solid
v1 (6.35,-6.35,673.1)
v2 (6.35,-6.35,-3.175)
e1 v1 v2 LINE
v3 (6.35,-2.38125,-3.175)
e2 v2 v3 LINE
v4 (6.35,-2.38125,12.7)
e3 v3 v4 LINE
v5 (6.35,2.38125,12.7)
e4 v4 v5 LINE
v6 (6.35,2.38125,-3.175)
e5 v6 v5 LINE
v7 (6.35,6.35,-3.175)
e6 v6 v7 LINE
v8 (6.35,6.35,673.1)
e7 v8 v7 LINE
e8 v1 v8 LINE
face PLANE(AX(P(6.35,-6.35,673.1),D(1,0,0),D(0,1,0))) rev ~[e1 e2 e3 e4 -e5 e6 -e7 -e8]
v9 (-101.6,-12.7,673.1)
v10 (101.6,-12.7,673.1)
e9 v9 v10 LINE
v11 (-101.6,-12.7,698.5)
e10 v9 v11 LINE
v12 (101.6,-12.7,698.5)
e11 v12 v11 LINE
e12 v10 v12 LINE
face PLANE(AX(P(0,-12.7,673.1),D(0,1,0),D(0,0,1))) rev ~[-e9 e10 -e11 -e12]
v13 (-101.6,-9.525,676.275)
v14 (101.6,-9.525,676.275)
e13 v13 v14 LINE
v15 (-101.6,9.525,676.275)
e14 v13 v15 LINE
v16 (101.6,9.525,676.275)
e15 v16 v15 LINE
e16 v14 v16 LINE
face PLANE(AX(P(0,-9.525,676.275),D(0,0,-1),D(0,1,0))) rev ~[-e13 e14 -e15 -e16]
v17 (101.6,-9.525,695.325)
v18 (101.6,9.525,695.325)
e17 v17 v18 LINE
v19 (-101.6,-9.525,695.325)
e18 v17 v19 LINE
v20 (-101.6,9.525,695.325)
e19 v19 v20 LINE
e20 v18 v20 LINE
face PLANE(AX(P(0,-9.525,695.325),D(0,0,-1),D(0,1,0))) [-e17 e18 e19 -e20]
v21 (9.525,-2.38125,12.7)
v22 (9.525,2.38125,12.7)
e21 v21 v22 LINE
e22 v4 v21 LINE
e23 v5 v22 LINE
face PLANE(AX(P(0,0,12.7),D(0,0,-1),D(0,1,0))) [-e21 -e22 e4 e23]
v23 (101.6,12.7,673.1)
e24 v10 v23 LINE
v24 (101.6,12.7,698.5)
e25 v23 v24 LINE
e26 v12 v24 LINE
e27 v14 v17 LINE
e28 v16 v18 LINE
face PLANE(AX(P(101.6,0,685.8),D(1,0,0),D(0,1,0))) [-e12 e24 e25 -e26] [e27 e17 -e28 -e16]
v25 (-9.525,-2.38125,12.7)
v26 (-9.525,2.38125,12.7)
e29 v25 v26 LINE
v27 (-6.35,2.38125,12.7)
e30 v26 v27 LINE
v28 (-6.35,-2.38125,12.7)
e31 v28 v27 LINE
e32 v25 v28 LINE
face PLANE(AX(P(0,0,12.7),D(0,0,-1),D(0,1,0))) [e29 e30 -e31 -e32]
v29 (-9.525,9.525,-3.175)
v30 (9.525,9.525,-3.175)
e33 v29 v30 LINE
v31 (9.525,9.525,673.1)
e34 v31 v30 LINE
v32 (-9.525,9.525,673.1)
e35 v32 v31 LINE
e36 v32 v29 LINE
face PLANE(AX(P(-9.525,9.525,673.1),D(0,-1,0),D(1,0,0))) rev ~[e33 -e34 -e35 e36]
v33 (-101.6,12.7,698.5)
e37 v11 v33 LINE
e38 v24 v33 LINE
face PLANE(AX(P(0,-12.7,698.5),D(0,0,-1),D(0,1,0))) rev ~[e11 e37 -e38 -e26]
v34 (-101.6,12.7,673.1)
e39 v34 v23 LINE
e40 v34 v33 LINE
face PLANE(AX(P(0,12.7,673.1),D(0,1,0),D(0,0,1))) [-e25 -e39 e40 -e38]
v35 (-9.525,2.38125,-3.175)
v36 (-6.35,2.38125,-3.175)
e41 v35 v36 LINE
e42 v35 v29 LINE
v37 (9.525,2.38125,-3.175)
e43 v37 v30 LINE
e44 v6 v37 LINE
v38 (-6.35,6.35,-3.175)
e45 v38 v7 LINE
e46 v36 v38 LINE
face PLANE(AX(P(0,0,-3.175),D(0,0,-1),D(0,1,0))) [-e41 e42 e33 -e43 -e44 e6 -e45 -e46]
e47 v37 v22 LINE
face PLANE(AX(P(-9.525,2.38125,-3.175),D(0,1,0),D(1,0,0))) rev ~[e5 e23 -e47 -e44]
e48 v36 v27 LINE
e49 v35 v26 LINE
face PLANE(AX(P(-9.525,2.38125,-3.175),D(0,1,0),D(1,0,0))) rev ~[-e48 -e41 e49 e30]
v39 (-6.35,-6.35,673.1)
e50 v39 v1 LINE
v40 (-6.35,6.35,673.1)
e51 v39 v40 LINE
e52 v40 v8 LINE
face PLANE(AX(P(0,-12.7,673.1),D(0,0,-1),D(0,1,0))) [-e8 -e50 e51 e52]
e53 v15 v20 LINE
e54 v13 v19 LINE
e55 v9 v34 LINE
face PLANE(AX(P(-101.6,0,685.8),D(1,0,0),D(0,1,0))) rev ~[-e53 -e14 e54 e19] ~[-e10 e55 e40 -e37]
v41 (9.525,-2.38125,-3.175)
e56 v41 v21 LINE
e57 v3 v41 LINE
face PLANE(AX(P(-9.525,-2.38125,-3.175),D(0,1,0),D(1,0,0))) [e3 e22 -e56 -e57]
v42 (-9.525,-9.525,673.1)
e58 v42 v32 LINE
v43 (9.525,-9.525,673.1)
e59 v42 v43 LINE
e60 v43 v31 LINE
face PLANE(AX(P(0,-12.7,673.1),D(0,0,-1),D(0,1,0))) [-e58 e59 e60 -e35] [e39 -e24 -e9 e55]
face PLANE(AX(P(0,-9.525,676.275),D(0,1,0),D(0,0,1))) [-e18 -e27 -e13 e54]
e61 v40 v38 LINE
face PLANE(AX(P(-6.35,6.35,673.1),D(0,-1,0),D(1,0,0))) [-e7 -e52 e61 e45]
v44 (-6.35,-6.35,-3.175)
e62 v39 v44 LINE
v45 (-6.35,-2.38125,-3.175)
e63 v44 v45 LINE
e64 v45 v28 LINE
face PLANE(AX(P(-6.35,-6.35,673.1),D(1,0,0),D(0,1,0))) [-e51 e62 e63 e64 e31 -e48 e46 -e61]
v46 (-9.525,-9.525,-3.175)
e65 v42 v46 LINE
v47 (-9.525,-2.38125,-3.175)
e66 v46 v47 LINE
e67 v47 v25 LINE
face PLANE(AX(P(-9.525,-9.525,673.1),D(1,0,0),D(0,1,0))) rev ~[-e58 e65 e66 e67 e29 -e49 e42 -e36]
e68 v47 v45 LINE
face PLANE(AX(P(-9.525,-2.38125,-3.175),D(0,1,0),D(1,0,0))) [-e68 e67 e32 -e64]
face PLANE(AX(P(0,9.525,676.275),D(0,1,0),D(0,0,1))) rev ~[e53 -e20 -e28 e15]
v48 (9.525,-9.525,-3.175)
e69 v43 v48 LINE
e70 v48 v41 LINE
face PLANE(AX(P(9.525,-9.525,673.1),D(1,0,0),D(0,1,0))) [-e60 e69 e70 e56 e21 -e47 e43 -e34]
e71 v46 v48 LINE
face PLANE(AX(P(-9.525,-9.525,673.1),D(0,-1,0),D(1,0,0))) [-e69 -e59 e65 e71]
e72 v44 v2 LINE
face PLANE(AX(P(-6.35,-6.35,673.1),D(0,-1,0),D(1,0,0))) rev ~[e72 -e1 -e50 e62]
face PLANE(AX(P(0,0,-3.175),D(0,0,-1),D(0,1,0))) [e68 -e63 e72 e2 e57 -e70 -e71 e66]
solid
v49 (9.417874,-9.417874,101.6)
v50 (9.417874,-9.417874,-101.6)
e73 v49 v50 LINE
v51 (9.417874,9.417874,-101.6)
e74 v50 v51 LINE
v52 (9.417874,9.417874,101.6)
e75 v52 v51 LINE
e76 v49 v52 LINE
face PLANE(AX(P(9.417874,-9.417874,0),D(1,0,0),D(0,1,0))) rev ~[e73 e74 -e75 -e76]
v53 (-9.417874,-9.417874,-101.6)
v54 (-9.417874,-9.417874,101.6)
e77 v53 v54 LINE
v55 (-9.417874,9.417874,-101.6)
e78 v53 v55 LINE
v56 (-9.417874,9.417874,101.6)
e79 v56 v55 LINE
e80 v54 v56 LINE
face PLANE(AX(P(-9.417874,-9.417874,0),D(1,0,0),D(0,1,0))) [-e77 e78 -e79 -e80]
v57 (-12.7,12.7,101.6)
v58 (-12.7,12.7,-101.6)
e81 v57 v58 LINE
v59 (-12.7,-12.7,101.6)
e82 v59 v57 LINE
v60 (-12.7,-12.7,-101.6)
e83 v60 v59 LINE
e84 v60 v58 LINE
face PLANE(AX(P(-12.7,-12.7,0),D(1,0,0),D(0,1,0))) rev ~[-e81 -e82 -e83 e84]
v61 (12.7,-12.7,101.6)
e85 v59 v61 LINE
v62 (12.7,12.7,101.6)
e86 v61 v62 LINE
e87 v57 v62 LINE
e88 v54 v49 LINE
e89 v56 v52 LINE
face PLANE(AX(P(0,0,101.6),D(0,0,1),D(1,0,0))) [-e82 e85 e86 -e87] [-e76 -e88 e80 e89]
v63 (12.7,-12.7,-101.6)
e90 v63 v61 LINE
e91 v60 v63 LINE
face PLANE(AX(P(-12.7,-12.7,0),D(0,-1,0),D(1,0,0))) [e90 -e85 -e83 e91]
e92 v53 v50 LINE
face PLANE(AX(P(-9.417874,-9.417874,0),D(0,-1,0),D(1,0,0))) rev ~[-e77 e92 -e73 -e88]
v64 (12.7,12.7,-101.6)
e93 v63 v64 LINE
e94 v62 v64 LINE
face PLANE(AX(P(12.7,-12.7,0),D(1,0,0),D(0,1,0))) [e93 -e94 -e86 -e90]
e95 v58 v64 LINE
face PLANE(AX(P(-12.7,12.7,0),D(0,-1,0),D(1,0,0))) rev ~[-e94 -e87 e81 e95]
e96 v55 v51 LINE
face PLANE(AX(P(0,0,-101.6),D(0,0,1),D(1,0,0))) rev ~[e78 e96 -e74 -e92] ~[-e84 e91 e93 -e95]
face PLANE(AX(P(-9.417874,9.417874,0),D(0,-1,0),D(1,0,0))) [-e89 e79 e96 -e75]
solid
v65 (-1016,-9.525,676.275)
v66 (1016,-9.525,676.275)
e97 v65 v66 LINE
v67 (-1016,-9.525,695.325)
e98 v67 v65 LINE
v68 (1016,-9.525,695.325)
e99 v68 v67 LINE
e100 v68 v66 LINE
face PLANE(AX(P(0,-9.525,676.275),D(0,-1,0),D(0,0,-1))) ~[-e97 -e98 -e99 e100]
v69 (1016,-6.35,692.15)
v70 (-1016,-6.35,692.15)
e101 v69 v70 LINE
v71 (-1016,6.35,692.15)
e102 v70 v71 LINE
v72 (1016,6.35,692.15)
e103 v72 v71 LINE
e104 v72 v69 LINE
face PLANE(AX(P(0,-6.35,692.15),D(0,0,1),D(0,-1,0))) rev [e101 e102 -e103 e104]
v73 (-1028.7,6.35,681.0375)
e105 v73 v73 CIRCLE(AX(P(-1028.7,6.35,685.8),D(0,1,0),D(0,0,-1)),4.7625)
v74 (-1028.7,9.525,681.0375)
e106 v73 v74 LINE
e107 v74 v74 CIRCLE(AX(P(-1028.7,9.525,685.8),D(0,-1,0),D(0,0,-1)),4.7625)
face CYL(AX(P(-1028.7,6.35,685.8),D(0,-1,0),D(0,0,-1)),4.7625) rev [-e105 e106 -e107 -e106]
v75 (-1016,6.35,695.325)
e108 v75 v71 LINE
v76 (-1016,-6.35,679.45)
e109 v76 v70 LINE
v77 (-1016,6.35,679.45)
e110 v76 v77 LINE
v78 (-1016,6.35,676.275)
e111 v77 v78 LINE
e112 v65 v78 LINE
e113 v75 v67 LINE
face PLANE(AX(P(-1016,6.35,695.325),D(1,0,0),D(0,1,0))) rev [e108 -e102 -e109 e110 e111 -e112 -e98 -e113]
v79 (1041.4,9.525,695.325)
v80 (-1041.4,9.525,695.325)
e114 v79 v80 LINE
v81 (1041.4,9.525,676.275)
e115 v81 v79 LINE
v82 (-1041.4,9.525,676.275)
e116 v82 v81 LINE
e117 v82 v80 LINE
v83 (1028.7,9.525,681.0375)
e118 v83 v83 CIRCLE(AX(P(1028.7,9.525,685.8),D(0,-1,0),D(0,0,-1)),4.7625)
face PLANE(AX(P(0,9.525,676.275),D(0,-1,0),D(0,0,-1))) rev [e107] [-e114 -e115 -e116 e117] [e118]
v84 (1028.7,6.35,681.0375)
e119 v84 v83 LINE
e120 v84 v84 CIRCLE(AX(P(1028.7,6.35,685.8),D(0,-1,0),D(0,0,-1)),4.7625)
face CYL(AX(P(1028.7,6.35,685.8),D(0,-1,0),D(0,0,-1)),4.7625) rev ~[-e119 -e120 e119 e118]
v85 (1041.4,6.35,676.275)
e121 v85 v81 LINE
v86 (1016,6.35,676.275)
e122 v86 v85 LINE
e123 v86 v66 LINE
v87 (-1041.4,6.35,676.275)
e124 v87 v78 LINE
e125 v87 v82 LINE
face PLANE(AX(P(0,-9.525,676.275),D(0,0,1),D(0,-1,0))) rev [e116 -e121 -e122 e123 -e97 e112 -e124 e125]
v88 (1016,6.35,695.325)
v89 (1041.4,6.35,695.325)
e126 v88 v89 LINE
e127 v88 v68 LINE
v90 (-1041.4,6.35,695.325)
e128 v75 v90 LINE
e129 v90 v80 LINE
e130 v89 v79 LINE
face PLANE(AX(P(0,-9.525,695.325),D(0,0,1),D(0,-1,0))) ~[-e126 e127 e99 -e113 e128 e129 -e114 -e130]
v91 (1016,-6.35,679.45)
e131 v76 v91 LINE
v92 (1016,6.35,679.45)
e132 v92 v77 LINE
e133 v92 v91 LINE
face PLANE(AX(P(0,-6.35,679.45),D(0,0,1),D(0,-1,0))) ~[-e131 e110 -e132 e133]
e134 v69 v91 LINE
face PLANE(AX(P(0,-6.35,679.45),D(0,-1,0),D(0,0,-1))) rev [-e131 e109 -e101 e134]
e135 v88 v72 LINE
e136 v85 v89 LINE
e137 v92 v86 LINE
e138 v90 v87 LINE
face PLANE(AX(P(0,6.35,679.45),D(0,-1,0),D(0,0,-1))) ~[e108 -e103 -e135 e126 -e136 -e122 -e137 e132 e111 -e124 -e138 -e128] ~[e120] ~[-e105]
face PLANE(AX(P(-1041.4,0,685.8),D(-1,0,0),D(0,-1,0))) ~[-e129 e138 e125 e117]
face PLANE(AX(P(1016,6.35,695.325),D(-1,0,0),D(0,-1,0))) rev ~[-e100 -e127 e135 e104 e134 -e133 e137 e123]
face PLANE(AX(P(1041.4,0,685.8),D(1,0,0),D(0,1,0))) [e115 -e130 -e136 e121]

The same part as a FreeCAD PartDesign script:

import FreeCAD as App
import Part
import Sketcher
Q = App.Units.Quantity

doc = App.newDocument("Part")
body = doc.addObject("PartDesign::Body", "Body")

sketch1 = doc.addObject("Sketcher::SketchObject", "Sketch")
body.addObject(sketch1)
sketch1.AttachmentSupport = (doc.YZ_Plane, [""])
sketch1.MapMode = "FlatFace"
sketch1.addGeometry([
    Part.LineSegment(App.Vector(-10, 695, 0), App.Vector(-10, 676, 0)),
    Part.LineSegment(App.Vector(-10, 676, 0), App.Vector(10, 676, 0)),
    Part.LineSegment(App.Vector(10, 676, 0), App.Vector(10, 695, 0)),
    Part.LineSegment(App.Vector(10, 695, 0), App.Vector(-10, 695, 0)),
    Part.LineSegment(App.Vector(6, 679, 0), App.Vector(-6, 679, 0)),
    Part.LineSegment(App.Vector(-6, 679, 0), App.Vector(-6, 692, 0)),
    Part.LineSegment(App.Vector(-6, 692, 0), App.Vector(6, 692, 0)),
    Part.LineSegment(App.Vector(6, 692, 0), App.Vector(6, 679, 0)),
], False)
sketch1.addConstraint([
    Sketcher.Constraint("Coincident", 0, 2, 1, 1),
    Sketcher.Constraint("Coincident", 1, 2, 2, 1),
    Sketcher.Constraint("Coincident", 2, 2, 3, 1),
    Sketcher.Constraint("Coincident", 3, 2, 0, 1),
    Sketcher.Constraint("Coincident", 4, 2, 5, 1),
    Sketcher.Constraint("Coincident", 5, 2, 6, 1),
    Sketcher.Constraint("Coincident", 6, 2, 7, 1),
    Sketcher.Constraint("Coincident", 7, 2, 4, 1),
    Sketcher.Constraint("Vertical", 0),
    Sketcher.Constraint("Horizontal", 1),
    Sketcher.Constraint("Vertical", 2),
    Sketcher.Constraint("Horizontal", 3),
    Sketcher.Constraint("Horizontal", 4),
    Sketcher.Constraint("Vertical", 5),
    Sketcher.Constraint("Horizontal", 6),
    Sketcher.Constraint("Vertical", 7),
    Sketcher.Constraint("Equal", 3, 0),
    Sketcher.Constraint("Equal", 6, 5),
    Sketcher.Constraint("DistanceX", 4, 2, 4, 1, Q("0.5 in")),
    Sketcher.Constraint("DistanceX", 1, 1, 1, 2, Q("0.75 in")),
    Sketcher.Constraint("DistanceX", 4, 2, -1, 1, Q("0.25 in")),
    Sketcher.Constraint("DistanceY", -1, 1, 4, 2, Q("26.75 in")),
    Sketcher.Constraint("DistanceX", 0, 2, -1, 1, Q("0.375 in")),
    Sketcher.Constraint("DistanceY", -1, 1, 0, 2, Q("26.625 in")),
])
pad1 = doc.addObject("PartDesign::Pad", "Pad")
body.addObject(pad1)
pad1.Profile = sketch1
pad1.Length = Q("41 in")

sketch2 = doc.addObject("Sketcher::SketchObject", "Sketch001")
body.addObject(sketch2)
sketch2.AttachmentSupport = (doc.XY_Plane, [""])
sketch2.MapMode = "FlatFace"
sketch2.AttachmentOffset = App.Placement(App.Vector(0, 0, 27.375 * 25.4), App.Rotation())
sketch2.addGeometry([
    Part.LineSegment(App.Vector(1041, 6, 0), App.Vector(1016, 6, 0)),
    Part.LineSegment(App.Vector(1016, 6, 0), App.Vector(1016, -10, 0)),
    Part.LineSegment(App.Vector(1016, -10, 0), App.Vector(1041, -10, 0)),
    Part.LineSegment(App.Vector(1041, -10, 0), App.Vector(1041, 6, 0)),
], False)
sketch2.addConstraint([
    Sketcher.Constraint("Coincident", 0, 2, 1, 1),
    Sketcher.Constraint("Coincident", 1, 2, 2, 1),
    Sketcher.Constraint("Coincident", 2, 2, 3, 1),
    Sketcher.Constraint("Coincident", 3, 2, 0, 1),
    Sketcher.Constraint("Horizontal", 0),
    Sketcher.Constraint("Vertical", 1),
    Sketcher.Constraint("Horizontal", 2),
    Sketcher.Constraint("Vertical", 3),
    Sketcher.Constraint("DistanceX", 0, 2, 0, 1, Q("1 in")),
    Sketcher.Constraint("DistanceX", -1, 1, 0, 2, Q("40 in")),
    Sketcher.Constraint("DistanceY", 1, 2, 1, 1, Q("0.625 in")),
    Sketcher.Constraint("DistanceY", -1, 1, 0, 2, Q("0.25 in")),
])
pocket1 = doc.addObject("PartDesign::Pocket", "Pocket")
body.addObject(pocket1)
pocket1.Profile = sketch2
pocket1.Type = "ThroughAll"

sketch3 = doc.addObject("Sketcher::SketchObject", "Sketch002")
body.addObject(sketch3)
sketch3.AttachmentSupport = (doc.XZ_Plane, [""])
sketch3.MapMode = "FlatFace"
sketch3.AttachmentOffset = App.Placement(App.Vector(0, 0, -0.25 * 25.4), App.Rotation())
sketch3.addGeometry(Part.Circle(App.Vector(1028.7, 685.8, 0), App.Vector(0, 0, 1), 4.8), False)
sketch3.addConstraint([
    Sketcher.Constraint("Diameter", 0, Q("0.375 in")),
    Sketcher.Constraint("DistanceY", -1, 1, 0, 3, Q("27 in")),
    Sketcher.Constraint("DistanceX", -1, 1, 0, 3, Q("40.5 in")),
])
pocket2 = doc.addObject("PartDesign::Pocket", "Pocket001")
body.addObject(pocket2)
pocket2.Profile = sketch3
pocket2.Type = "ThroughAll"
doc.recompute()

mirrored = doc.addObject("PartDesign::Mirrored", "Mirrored")
body.addObject(mirrored)
mirrored.Originals = [pad1, pocket1, pocket2]
mirrored.MirrorPlane = (doc.YZ_Plane, [""])
body.Tip = mirrored
body2 = doc.addObject("PartDesign::Body", "Body001")

sketch4 = doc.addObject("Sketcher::SketchObject", "Sketch003")
body2.addObject(sketch4)
sketch4.AttachmentSupport = (doc.getObject("YZ_Plane001"), [""])
sketch4.MapMode = "FlatFace"
sketch4.addGeometry([
    Part.LineSegment(App.Vector(-13, 698, 0), App.Vector(-13, 673, 0)),
    Part.LineSegment(App.Vector(-13, 673, 0), App.Vector(13, 673, 0)),
    Part.LineSegment(App.Vector(13, 673, 0), App.Vector(13, 698, 0)),
    Part.LineSegment(App.Vector(13, 698, 0), App.Vector(-13, 698, 0)),
    Part.LineSegment(App.Vector(10, 676, 0), App.Vector(-10, 676, 0)),
    Part.LineSegment(App.Vector(-10, 676, 0), App.Vector(-10, 695, 0)),
    Part.LineSegment(App.Vector(-10, 695, 0), App.Vector(10, 695, 0)),
    Part.LineSegment(App.Vector(10, 695, 0), App.Vector(10, 676, 0)),
], False)
sketch4.addConstraint([
    Sketcher.Constraint("Coincident", 0, 2, 1, 1),
    Sketcher.Constraint("Coincident", 1, 2, 2, 1),
    Sketcher.Constraint("Coincident", 2, 2, 3, 1),
    Sketcher.Constraint("Coincident", 3, 2, 0, 1),
    Sketcher.Constraint("Coincident", 4, 2, 5, 1),
    Sketcher.Constraint("Coincident", 5, 2, 6, 1),
    Sketcher.Constraint("Coincident", 6, 2, 7, 1),
    Sketcher.Constraint("Coincident", 7, 2, 4, 1),
    Sketcher.Constraint("Vertical", 0),
    Sketcher.Constraint("Horizontal", 1),
    Sketcher.Constraint("Vertical", 2),
    Sketcher.Constraint("Horizontal", 3),
    Sketcher.Constraint("Horizontal", 4),
    Sketcher.Constraint("Vertical", 5),
    Sketcher.Constraint("Horizontal", 6),
    Sketcher.Constraint("Vertical", 7),
    Sketcher.Constraint("Equal", 3, 0),
    Sketcher.Constraint("Equal", 6, 5),
    Sketcher.Constraint("DistanceX", 1, 1, 1, 2, Q("1 in")),
    Sketcher.Constraint("DistanceX", 4, 2, 4, 1, Q("0.75 in")),
    Sketcher.Constraint("DistanceX", 0, 2, -1, 1, Q("0.5 in")),
    Sketcher.Constraint("DistanceY", -1, 1, 0, 2, Q("26.5 in")),
    Sketcher.Constraint("DistanceX", 4, 2, -1, 1, Q("0.375 in")),
    Sketcher.Constraint("DistanceY", -1, 1, 4, 2, Q("26.625 in")),
])
pad2 = doc.addObject("PartDesign::Pad", "Pad001")
body2.addObject(pad2)
pad2.Profile = sketch4
pad2.Length = Q("8 in")
pad2.Midplane = True

sketch5 = doc.addObject("Sketcher::SketchObject", "Sketch004")
body2.addObject(sketch5)
sketch5.AttachmentSupport = (doc.getObject("XY_Plane001"), [""])
sketch5.MapMode = "FlatFace"
sketch5.AttachmentOffset = App.Placement(App.Vector(0, 0, 26.5 * 25.4), App.Rotation())
sketch5.addGeometry([
    Part.LineSegment(App.Vector(10, -10, 0), App.Vector(-10, -10, 0)),
    Part.LineSegment(App.Vector(-10, -10, 0), App.Vector(-10, 10, 0)),
    Part.LineSegment(App.Vector(-10, 10, 0), App.Vector(10, 10, 0)),
    Part.LineSegment(App.Vector(10, 10, 0), App.Vector(10, -10, 0)),
    Part.LineSegment(App.Vector(-6, 6, 0), App.Vector(-6, -6, 0)),
    Part.LineSegment(App.Vector(-6, -6, 0), App.Vector(6, -6, 0)),
    Part.LineSegment(App.Vector(6, -6, 0), App.Vector(6, 6, 0)),
    Part.LineSegment(App.Vector(6, 6, 0), App.Vector(-6, 6, 0)),
], False)
sketch5.addConstraint([
    Sketcher.Constraint("Coincident", 0, 2, 1, 1),
    Sketcher.Constraint("Coincident", 1, 2, 2, 1),
    Sketcher.Constraint("Coincident", 2, 2, 3, 1),
    Sketcher.Constraint("Coincident", 3, 2, 0, 1),
    Sketcher.Constraint("Coincident", 4, 2, 5, 1),
    Sketcher.Constraint("Coincident", 5, 2, 6, 1),
    Sketcher.Constraint("Coincident", 6, 2, 7, 1),
    Sketcher.Constraint("Coincident", 7, 2, 4, 1),
    Sketcher.Constraint("Horizontal", 0),
    Sketcher.Constraint("Vertical", 1),
    Sketcher.Constraint("Horizontal", 2),
    Sketcher.Constraint("Vertical", 3),
    Sketcher.Constraint("Vertical", 4),
    Sketcher.Constraint("Horizontal", 5),
    Sketcher.Constraint("Vertical", 6),
    Sketcher.Constraint("Horizontal", 7),
    Sketcher.Constraint("Symmetric", 0, 2, 2, 2, -1, 1),
    Sketcher.Constraint("Symmetric", 4, 2, 6, 2, -1, 1),
    Sketcher.Constraint("Equal", 2, 1),
    Sketcher.Constraint("Equal", 7, 4),
    Sketcher.Constraint("DistanceX", 5, 1, 5, 2, Q("0.5 in")),
    Sketcher.Constraint("DistanceX", 0, 2, 0, 1, Q("0.75 in")),
])
pad3 = doc.addObject("PartDesign::Pad", "Pad002")
body2.addObject(pad3)
pad3.Profile = sketch5
pad3.Length = Q("26.625 in")
pad3.Reversed = True

sketch6 = doc.addObject("Sketcher::SketchObject", "Sketch005")
body2.addObject(sketch6)
sketch6.AttachmentSupport = (doc.getObject("XY_Plane001"), [""])
sketch6.MapMode = "FlatFace"
sketch6.AttachmentOffset = App.Placement(App.Vector(0, 0, -0.125 * 25.4), App.Rotation())
sketch6.addGeometry([
    Part.LineSegment(App.Vector(9.5, -2.4, 0), App.Vector(-9.5, -2.4, 0)),
    Part.LineSegment(App.Vector(-9.5, -2.4, 0), App.Vector(-9.5, 2.4, 0)),
    Part.LineSegment(App.Vector(-9.5, 2.4, 0), App.Vector(9.5, 2.4, 0)),
    Part.LineSegment(App.Vector(9.5, 2.4, 0), App.Vector(9.5, -2.4, 0)),
], False)
sketch6.addConstraint([
    Sketcher.Constraint("Coincident", 0, 2, 1, 1),
    Sketcher.Constraint("Coincident", 1, 2, 2, 1),
    Sketcher.Constraint("Coincident", 2, 2, 3, 1),
    Sketcher.Constraint("Coincident", 3, 2, 0, 1),
    Sketcher.Constraint("Horizontal", 0),
    Sketcher.Constraint("Vertical", 1),
    Sketcher.Constraint("Horizontal", 2),
    Sketcher.Constraint("Vertical", 3),
    Sketcher.Constraint("Symmetric", 0, 2, 2, 2, -1, 1),
    Sketcher.Constraint("DistanceX", 0, 2, 0, 1, Q("0.75 in")),
    Sketcher.Constraint("DistanceY", 1, 1, 1, 2, Q("0.1875 in")),
])
pocket3 = doc.addObject("PartDesign::Pocket", "Pocket002")
body2.addObject(pocket3)
pocket3.Profile = sketch6
pocket3.Length = Q("0.625 in")
pocket3.Reversed = True
body3 = doc.addObject("PartDesign::Body", "Body002")

sketch7 = doc.addObject("Sketcher::SketchObject", "Sketch006")
body3.addObject(sketch7)
sketch7.AttachmentSupport = (doc.getObject("XY_Plane002"), [""])
sketch7.MapMode = "FlatFace"
sketch7.addGeometry([
    Part.LineSegment(App.Vector(-13, 13, 0), App.Vector(-13, -13, 0)),
    Part.LineSegment(App.Vector(-13, -13, 0), App.Vector(13, -13, 0)),
    Part.LineSegment(App.Vector(13, -13, 0), App.Vector(13, 13, 0)),
    Part.LineSegment(App.Vector(13, 13, 0), App.Vector(-13, 13, 0)),
    Part.LineSegment(App.Vector(9, -9, 0), App.Vector(-9, -9, 0)),
    Part.LineSegment(App.Vector(-9, -9, 0), App.Vector(-9, 9, 0)),
    Part.LineSegment(App.Vector(-9, 9, 0), App.Vector(9, 9, 0)),
    Part.LineSegment(App.Vector(9, 9, 0), App.Vector(9, -9, 0)),
], False)
sketch7.addConstraint([
    Sketcher.Constraint("Coincident", 0, 2, 1, 1),
    Sketcher.Constraint("Coincident", 1, 2, 2, 1),
    Sketcher.Constraint("Coincident", 2, 2, 3, 1),
    Sketcher.Constraint("Coincident", 3, 2, 0, 1),
    Sketcher.Constraint("Coincident", 4, 2, 5, 1),
    Sketcher.Constraint("Coincident", 5, 2, 6, 1),
    Sketcher.Constraint("Coincident", 6, 2, 7, 1),
    Sketcher.Constraint("Coincident", 7, 2, 4, 1),
    Sketcher.Constraint("Vertical", 0),
    Sketcher.Constraint("Horizontal", 1),
    Sketcher.Constraint("Vertical", 2),
    Sketcher.Constraint("Horizontal", 3),
    Sketcher.Constraint("Horizontal", 4),
    Sketcher.Constraint("Vertical", 5),
    Sketcher.Constraint("Horizontal", 6),
    Sketcher.Constraint("Vertical", 7),
    Sketcher.Constraint("Symmetric", 0, 2, 2, 2, -1, 1),
    Sketcher.Constraint("Symmetric", 4, 2, 6, 2, -1, 1),
    Sketcher.Constraint("Equal", 3, 0),
    Sketcher.Constraint("Equal", 6, 5),
    Sketcher.Constraint("DistanceX", 1, 1, 1, 2, Q("1 in")),
    Sketcher.Constraint("DistanceX", 4, 2, 4, 1, Q("18.835748 mm")),
])
pad4 = doc.addObject("PartDesign::Pad", "Pad003")
body3.addObject(pad4)
pad4.Profile = sketch7
pad4.Length = Q("8 in")
pad4.Midplane = True

doc.recompute()
